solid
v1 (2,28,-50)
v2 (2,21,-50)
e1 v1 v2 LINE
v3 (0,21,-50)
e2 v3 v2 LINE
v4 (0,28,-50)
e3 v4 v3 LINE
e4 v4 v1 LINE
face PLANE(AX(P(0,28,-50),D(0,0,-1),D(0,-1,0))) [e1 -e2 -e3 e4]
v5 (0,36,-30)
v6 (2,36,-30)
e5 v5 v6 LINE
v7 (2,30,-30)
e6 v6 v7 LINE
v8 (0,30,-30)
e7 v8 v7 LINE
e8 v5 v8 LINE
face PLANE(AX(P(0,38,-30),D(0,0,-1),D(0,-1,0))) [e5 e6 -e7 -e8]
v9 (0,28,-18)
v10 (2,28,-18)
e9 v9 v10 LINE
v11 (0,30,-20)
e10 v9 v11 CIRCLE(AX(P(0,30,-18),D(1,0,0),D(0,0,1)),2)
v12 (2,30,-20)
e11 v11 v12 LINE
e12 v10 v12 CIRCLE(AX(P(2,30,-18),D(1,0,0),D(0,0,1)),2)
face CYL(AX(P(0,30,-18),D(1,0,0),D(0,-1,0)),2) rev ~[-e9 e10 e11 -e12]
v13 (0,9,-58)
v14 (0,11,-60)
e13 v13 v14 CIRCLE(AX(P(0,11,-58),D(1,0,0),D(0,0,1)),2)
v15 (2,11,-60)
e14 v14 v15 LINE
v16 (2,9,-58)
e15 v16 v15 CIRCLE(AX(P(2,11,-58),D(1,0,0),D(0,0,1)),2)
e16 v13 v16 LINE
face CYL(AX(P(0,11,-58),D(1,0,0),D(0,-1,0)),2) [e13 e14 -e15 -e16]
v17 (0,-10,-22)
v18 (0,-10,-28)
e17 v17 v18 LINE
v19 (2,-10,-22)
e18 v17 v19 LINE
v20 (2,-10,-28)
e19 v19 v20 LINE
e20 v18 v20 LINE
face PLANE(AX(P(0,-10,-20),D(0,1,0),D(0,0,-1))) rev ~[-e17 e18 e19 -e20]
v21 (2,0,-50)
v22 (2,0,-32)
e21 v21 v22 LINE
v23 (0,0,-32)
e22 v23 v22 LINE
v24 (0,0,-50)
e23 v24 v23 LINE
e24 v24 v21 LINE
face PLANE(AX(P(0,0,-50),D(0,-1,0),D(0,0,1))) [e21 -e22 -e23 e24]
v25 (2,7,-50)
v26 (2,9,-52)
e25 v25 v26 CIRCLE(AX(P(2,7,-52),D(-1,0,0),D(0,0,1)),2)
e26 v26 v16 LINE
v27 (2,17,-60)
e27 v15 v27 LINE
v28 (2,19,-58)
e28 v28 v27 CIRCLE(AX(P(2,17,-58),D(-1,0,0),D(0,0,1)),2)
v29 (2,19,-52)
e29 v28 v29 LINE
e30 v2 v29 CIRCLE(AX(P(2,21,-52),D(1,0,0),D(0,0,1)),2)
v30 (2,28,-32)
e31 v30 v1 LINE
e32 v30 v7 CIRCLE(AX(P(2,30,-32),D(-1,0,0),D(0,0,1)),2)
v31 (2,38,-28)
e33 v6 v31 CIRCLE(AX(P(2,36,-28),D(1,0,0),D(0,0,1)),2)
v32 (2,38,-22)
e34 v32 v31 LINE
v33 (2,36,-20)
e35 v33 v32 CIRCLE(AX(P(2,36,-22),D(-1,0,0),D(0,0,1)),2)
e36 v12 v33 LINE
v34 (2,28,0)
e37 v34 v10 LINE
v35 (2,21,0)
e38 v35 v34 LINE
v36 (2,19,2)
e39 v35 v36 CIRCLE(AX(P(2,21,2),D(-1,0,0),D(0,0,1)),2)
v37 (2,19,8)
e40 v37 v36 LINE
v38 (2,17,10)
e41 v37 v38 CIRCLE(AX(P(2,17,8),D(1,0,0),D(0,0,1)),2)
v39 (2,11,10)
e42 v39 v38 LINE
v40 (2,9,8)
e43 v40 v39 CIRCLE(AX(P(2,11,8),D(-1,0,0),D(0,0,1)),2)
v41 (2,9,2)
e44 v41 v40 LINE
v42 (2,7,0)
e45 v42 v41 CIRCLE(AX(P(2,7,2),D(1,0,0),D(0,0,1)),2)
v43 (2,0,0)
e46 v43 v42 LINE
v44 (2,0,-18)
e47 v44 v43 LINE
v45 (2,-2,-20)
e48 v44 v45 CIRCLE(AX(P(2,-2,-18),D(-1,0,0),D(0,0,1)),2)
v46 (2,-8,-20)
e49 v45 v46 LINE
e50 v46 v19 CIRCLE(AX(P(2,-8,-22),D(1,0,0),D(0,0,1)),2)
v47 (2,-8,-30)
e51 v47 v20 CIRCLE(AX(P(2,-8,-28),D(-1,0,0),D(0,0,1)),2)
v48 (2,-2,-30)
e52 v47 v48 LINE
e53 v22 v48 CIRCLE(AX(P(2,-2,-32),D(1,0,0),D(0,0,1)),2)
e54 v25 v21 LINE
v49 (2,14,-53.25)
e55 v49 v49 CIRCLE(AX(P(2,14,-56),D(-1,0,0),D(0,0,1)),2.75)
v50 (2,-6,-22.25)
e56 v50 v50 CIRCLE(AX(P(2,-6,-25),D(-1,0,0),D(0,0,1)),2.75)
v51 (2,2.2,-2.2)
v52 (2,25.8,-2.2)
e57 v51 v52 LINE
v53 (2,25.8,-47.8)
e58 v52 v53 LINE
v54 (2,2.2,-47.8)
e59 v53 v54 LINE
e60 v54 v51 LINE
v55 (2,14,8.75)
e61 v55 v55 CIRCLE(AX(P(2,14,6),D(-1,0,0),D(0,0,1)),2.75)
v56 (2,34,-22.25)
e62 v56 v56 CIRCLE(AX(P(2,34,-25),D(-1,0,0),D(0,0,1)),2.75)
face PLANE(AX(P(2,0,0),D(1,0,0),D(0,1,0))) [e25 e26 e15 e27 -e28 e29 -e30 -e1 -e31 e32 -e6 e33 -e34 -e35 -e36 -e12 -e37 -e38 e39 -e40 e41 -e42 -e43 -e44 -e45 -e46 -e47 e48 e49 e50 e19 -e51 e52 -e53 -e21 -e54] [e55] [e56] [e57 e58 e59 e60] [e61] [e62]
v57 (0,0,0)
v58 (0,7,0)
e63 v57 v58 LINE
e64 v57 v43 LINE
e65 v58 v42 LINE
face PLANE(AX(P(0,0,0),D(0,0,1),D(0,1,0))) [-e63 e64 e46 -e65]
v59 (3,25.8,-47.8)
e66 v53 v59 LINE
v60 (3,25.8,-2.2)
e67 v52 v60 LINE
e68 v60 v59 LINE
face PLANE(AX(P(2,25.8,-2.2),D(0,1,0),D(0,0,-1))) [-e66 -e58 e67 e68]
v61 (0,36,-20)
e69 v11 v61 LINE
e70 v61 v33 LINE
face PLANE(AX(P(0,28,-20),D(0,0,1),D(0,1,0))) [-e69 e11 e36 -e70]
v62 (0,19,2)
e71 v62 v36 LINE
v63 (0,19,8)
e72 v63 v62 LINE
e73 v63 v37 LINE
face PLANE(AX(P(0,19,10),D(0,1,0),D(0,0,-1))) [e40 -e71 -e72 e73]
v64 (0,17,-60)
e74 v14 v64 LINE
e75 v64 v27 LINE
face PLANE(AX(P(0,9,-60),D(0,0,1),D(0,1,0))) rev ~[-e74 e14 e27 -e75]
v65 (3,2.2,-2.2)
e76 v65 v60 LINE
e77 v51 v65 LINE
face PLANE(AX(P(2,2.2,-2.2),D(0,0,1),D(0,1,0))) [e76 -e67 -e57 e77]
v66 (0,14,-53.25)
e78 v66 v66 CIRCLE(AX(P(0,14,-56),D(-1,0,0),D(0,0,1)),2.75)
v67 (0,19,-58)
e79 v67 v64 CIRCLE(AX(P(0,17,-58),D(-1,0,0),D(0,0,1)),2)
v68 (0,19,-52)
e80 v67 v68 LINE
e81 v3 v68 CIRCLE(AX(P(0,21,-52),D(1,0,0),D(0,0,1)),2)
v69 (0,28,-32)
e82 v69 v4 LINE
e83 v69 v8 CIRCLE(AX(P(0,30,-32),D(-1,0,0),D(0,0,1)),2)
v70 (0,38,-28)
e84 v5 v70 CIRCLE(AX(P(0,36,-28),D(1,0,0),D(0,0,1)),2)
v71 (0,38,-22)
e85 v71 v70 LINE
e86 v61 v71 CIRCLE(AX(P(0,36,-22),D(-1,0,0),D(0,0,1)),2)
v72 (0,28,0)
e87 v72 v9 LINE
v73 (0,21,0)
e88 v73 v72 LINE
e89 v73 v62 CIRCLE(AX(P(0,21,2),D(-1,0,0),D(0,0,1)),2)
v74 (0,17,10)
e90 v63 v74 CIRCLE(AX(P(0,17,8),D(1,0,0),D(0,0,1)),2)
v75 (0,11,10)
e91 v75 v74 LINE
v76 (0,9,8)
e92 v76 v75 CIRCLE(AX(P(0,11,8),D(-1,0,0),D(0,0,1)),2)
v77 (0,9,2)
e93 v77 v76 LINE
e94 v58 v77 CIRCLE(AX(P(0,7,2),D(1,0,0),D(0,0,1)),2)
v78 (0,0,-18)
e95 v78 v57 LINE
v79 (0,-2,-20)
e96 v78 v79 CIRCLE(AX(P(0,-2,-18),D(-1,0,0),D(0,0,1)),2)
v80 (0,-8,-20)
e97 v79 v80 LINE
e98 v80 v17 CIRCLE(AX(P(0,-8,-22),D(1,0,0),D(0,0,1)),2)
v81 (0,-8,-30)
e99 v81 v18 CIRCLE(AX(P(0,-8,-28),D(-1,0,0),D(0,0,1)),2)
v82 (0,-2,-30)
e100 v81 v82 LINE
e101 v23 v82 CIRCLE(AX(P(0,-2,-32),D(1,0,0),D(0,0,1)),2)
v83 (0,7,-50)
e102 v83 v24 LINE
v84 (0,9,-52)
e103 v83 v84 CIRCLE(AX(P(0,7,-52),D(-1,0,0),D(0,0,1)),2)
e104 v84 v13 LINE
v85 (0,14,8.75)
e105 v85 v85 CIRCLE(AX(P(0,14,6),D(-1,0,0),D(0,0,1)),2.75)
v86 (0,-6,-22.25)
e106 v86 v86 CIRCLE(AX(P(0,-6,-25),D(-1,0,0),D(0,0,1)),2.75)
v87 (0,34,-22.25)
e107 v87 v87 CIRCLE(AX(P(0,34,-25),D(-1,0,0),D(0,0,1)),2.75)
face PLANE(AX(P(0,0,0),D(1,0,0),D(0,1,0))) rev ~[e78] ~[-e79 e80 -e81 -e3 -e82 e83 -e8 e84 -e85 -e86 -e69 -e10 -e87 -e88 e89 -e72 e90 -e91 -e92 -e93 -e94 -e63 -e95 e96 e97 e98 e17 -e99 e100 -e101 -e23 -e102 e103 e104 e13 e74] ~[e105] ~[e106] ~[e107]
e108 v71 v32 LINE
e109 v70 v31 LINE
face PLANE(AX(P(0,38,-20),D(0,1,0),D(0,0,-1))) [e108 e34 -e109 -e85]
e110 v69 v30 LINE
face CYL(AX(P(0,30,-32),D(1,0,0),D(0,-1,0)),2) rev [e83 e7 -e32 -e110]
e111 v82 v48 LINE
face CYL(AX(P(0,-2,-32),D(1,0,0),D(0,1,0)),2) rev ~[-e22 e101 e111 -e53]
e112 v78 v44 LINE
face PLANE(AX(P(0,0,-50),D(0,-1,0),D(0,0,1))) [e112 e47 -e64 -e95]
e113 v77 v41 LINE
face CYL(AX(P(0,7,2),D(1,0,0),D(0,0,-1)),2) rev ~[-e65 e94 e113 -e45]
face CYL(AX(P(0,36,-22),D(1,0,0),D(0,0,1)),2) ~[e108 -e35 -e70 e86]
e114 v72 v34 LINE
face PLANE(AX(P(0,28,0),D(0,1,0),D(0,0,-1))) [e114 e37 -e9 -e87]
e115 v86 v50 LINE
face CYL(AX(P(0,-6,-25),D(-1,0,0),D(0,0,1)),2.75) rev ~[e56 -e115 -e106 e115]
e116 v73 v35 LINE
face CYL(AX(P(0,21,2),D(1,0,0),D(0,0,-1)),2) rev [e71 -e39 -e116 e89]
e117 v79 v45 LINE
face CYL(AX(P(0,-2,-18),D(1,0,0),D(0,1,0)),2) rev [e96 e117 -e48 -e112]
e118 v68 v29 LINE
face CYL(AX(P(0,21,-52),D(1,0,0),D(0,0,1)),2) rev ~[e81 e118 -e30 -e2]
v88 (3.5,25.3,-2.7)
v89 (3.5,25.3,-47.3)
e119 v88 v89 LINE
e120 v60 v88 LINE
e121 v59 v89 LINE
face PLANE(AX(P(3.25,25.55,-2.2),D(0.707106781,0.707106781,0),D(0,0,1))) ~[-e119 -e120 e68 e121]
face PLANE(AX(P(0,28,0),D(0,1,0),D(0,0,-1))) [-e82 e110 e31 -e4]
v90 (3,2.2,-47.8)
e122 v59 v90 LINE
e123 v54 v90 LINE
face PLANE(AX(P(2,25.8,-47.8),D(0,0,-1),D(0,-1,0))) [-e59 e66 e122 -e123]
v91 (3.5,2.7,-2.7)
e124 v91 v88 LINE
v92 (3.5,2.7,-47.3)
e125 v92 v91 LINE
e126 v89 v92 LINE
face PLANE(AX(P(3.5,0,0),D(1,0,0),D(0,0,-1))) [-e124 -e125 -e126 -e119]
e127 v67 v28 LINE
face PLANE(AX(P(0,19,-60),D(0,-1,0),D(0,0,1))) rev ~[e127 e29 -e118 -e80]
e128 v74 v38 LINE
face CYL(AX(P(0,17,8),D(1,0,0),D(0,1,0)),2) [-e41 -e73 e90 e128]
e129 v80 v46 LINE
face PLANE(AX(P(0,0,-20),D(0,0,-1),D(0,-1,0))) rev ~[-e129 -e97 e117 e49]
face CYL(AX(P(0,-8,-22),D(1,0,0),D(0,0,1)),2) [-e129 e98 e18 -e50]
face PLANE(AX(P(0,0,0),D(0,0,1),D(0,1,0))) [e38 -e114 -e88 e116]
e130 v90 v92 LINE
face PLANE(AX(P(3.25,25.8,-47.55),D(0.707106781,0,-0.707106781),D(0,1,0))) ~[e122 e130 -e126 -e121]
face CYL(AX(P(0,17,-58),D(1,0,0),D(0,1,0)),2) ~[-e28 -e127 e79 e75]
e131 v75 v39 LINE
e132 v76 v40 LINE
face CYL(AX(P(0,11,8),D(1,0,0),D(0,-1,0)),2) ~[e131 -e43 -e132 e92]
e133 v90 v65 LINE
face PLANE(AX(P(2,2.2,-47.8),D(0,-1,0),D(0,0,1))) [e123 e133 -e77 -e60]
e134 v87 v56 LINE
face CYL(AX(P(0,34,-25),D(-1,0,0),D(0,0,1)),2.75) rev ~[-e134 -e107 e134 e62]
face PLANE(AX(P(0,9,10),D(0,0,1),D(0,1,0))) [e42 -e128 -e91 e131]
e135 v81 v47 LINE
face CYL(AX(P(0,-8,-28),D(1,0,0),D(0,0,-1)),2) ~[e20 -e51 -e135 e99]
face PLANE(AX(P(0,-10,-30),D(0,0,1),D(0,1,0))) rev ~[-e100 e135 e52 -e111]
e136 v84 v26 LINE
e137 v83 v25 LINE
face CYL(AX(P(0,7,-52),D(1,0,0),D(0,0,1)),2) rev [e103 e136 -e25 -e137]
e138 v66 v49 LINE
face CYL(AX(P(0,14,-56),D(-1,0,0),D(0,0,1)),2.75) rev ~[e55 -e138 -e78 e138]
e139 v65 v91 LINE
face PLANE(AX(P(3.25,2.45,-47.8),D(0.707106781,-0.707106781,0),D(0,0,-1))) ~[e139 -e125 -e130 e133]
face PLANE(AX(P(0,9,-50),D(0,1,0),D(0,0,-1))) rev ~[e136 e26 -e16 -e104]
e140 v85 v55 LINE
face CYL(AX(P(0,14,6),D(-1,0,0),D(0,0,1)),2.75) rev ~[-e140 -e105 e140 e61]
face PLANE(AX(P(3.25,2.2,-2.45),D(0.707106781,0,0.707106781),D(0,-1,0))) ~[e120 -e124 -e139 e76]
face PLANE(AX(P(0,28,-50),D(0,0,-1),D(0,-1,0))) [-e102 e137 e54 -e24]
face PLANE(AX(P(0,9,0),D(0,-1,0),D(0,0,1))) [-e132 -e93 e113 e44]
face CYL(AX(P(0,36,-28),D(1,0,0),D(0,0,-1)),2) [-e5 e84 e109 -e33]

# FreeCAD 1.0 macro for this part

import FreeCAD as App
import Part
import Sketcher


def edges_at(feature, points):
    """Names of the edges that pass closest to the given points."""
    edges = feature.Shape.Edges
    near = lambda p: min(range(len(edges)), key=lambda i: edges[i].distToShape(Part.Vertex(*p))[0])
    return sorted({f"Edge{near(p) + 1}" for p in points})


def add_polygon(sketch, points):
    """Adds a closed chain of lines whose ends are joined by coincident constraints."""
    first, n = sketch.GeometryCount, len(points)
    for a, b in zip(points, points[1:] + points[:1]):
        sketch.addGeometry(Part.LineSegment(App.Vector(*a, 0), App.Vector(*b, 0)), False)
    for i in range(n):
        sketch.addConstraint(Sketcher.Constraint("Coincident", first + i, 2, first + (i + 1) % n, 1))

doc = App.newDocument("Part")
params = doc.addObject("Spreadsheet::Sheet", "Params")
for row, (alias, value) in enumerate([
    ("sketch1_width", "28 mm"),
    ("sketch1_height", "50 mm"),
    ("pad1_length", "2 mm"),
    ("sketch2_width", "23.6 mm"),
    ("sketch2_height", "45.6 mm"),
    ("pad2_length", "1.5 mm"),
    ("chamfer_size", "0.5 mm"),
    ("sketch3_width", "10 mm"),
    ("pad3_length", "2 mm"),
    ("fillet_radius", "2 mm"),
    ("sketch4_diameter", "5.5 mm"),
    ("pocket1_length", "2 mm"),
], start=1):
    params.set(f"A{row}", alias)
    params.set(f"B{row}", "=" + value)
    params.setAlias(f"B{row}", alias)

body = doc.addObject("PartDesign::Body", "Body")

sketch1 = body.newObject("Sketcher::SketchObject", "Sketch")
sketch1.AttachmentSupport = (doc.getObject("YZ_Plane"), [""])
sketch1.MapMode = "FlatFace"
add_polygon(sketch1, [(28, 0), (0, 0), (0, -50), (28, -50)])
sketch1.addConstraint([
    Sketcher.Constraint("Horizontal", 0),
    Sketcher.Constraint("Vertical", 1),
    Sketcher.Constraint("Horizontal", 2),
    Sketcher.Constraint("Vertical", 3),
    Sketcher.Constraint("Coincident", 0, 2, -1, 1),
    Sketcher.Constraint("DistanceX", 0, 2, 0, 1, 28.0),
    Sketcher.Constraint("DistanceY", 1, 2, 1, 1, 50.0),
])
sketch1.setExpression("Constraints[9]", "Params.sketch1_width")
sketch1.setExpression("Constraints[10]", "Params.sketch1_height")
pad1 = body.newObject("PartDesign::Pad", "Pad")
pad1.Profile = sketch1
pad1.setExpression("Length", "Params.pad1_length")

sketch2 = body.newObject("Sketcher::SketchObject", "Sketch001")
sketch2.AttachmentSupport = (doc.getObject("YZ_Plane"), [""])
sketch2.MapMode = "FlatFace"
sketch2.AttachmentOffset = App.Placement(App.Vector(0, 0, 2), App.Rotation())
add_polygon(sketch2, [(26, -48), (26, -2), (2, -2), (2, -48)])
sketch2.addConstraint([
    Sketcher.Constraint("Vertical", 0),
    Sketcher.Constraint("Horizontal", 1),
    Sketcher.Constraint("Vertical", 2),
    Sketcher.Constraint("Horizontal", 3),
    Sketcher.Constraint("DistanceX", 1, 2, 1, 1, 23.6),
    Sketcher.Constraint("DistanceY", 0, 1, 0, 2, 45.6),
    Sketcher.Constraint("DistanceY", 0, 2, -1, 1, 2.2),
    Sketcher.Constraint("DistanceX", -1, 1, 1, 2, 2.2),
])
sketch2.setExpression("Constraints[8]", "Params.sketch2_width")
sketch2.setExpression("Constraints[9]", "Params.sketch2_height")
pad2 = body.newObject("PartDesign::Pad", "Pad001")
pad2.Profile = sketch2
pad2.setExpression("Length", "Params.pad2_length")
doc.recompute()

chamfer = body.newObject("PartDesign::Chamfer", "Chamfer")
chamfer.Base = (pad2, edges_at(pad2, [
    (3.5, 2.2, -25),
    (3.5, 14, -2.2),
    (3.5, 14, -47.8),
    (3.5, 25.8, -25),
]))
chamfer.setExpression("Size", "Params.chamfer_size")

sketch3 = body.newObject("Sketcher::SketchObject", "Sketch002")
sketch3.AttachmentSupport = (doc.getObject("YZ_Plane"), [""])
sketch3.MapMode = "FlatFace"
add_polygon(sketch3, [(9, -60), (9, -50), (19, -50), (19, -60)])
add_polygon(sketch3, [(0, -20), (0, -30), (-10, -30), (-10, -20)])
add_polygon(sketch3, [(38, -30), (28, -30), (28, -20), (38, -20)])
add_polygon(sketch3, [(19, 0), (9, 0), (9, 10), (19, 10)])
sketch3.addConstraint([
    Sketcher.Constraint("Vertical", 0),
    Sketcher.Constraint("Horizontal", 1),
    Sketcher.Constraint("Vertical", 2),
    Sketcher.Constraint("Horizontal", 3),
    Sketcher.Constraint("Vertical", 4),
    Sketcher.Constraint("Horizontal", 5),
    Sketcher.Constraint("Vertical", 6),
    Sketcher.Constraint("Horizontal", 7),
    Sketcher.Constraint("Horizontal", 8),
    Sketcher.Constraint("Vertical", 9),
    Sketcher.Constraint("Horizontal", 10),
    Sketcher.Constraint("Vertical", 11),
    Sketcher.Constraint("Horizontal", 12),
    Sketcher.Constraint("Vertical", 13),
    Sketcher.Constraint("Horizontal", 14),
    Sketcher.Constraint("Vertical", 15),
    Sketcher.Constraint("PointOnObject", 4, 2, -2),
    Sketcher.Constraint("PointOnObject", 12, 2, -1),
    Sketcher.Constraint("Horizontal", 5, 2, 8, 2),
    Sketcher.Constraint("Horizontal", 7, 2, 9, 2),
    Sketcher.Constraint("Vertical", 3, 2, 12, 2),
    Sketcher.Constraint("Vertical", 2, 2, 14, 2),
    Sketcher.Constraint("Equal", 3, 5),
    Sketcher.Constraint("Equal", 7, 8),
    Sketcher.Constraint("Equal", 14, 0),
    Sketcher.Constraint("Equal", 2, 4),
    Sketcher.Constraint("Equal", 11, 13),
    Sketcher.Constraint("DistanceX", 1, 1, 1, 2, 10.0),
    Sketcher.Constraint("DistanceX", -1, 1, 0, 2, 9.0),
    Sketcher.Constraint("DistanceY", 6, 2, -1, 1, 20.0),
    Sketcher.Constraint("DistanceY", 0, 2, 4, 2, 20.0),
    Sketcher.Constraint("DistanceX", 1, 2, 8, 2, 9.0),
])
sketch3.setExpression("Constraints[43]", "Params.sketch3_width")
pad3 = body.newObject("PartDesign::Pad", "Pad002")
pad3.Profile = sketch3
pad3.setExpression("Length", "Params.pad3_length")
doc.recompute()

fillet = body.newObject("PartDesign::Fillet", "Fillet")
fillet.Base = (pad3, edges_at(pad3, [
    (1, 28, -30),
    (1, 38, -30),
    (1, 38, -20),
    (1, 19, -50),
    (1, 19, -60),
    (1, 9, -60),
    (1, 19, 10),
    (1, -10, -30),
    (1, 9, -50),
    (1, -10, -20),
    (1, 9, 10),
    (1, 0, -20),
    (1, 9, 0),
    (1, 19, 0),
    (1, 28, -20),
    (1, 0, -30),
]))
fillet.setExpression("Radius", "Params.fillet_radius")

sketch4 = body.newObject("Sketcher::SketchObject", "Sketch003")
sketch4.AttachmentSupport = (doc.getObject("YZ_Plane"), [""])
sketch4.MapMode = "FlatFace"
sketch4.addGeometry([
    Part.Circle(App.Vector(34, -25, 0), App.Vector(0, 0, 1), 2.8),
    Part.Circle(App.Vector(14, 6, 0), App.Vector(0, 0, 1), 2.8),
    Part.Circle(App.Vector(-6, -25, 0), App.Vector(0, 0, 1), 2.8),
    Part.Circle(App.Vector(14, -56, 0), App.Vector(0, 0, 1), 2.8),
], False)
sketch4.addConstraint([
    Sketcher.Constraint("Equal", 0, 1),
    Sketcher.Constraint("Equal", 1, 2),
    Sketcher.Constraint("Equal", 2, 3),
    Sketcher.Constraint("Horizontal", 0, 3, 2, 3),
    Sketcher.Constraint("Vertical", 1, 3, 3, 3),
    Sketcher.Constraint("Diameter", 0, 5.5),
    Sketcher.Constraint("DistanceX", -1, 1, 0, 3, 34.0),
    Sketcher.Constraint("DistanceY", 0, 3, -1, 1, 25.0),
    Sketcher.Constraint("DistanceX", -1, 1, 1, 3, 14.0),
    Sketcher.Constraint("DistanceY", -1, 1, 1, 3, 6.0),
    Sketcher.Constraint("DistanceX", 2, 3, -1, 1, 6.0),
    Sketcher.Constraint("DistanceY", 3, 3, -1, 1, 56.0),
])
sketch4.setExpression("Constraints[5]", "Params.sketch4_diameter")
pocket1 = body.newObject("PartDesign::Pocket", "Pocket")
pocket1.Profile = sketch4
pocket1.setExpression("Length", "Params.pocket1_length")
pocket1.Reversed = True

doc.recompute()
